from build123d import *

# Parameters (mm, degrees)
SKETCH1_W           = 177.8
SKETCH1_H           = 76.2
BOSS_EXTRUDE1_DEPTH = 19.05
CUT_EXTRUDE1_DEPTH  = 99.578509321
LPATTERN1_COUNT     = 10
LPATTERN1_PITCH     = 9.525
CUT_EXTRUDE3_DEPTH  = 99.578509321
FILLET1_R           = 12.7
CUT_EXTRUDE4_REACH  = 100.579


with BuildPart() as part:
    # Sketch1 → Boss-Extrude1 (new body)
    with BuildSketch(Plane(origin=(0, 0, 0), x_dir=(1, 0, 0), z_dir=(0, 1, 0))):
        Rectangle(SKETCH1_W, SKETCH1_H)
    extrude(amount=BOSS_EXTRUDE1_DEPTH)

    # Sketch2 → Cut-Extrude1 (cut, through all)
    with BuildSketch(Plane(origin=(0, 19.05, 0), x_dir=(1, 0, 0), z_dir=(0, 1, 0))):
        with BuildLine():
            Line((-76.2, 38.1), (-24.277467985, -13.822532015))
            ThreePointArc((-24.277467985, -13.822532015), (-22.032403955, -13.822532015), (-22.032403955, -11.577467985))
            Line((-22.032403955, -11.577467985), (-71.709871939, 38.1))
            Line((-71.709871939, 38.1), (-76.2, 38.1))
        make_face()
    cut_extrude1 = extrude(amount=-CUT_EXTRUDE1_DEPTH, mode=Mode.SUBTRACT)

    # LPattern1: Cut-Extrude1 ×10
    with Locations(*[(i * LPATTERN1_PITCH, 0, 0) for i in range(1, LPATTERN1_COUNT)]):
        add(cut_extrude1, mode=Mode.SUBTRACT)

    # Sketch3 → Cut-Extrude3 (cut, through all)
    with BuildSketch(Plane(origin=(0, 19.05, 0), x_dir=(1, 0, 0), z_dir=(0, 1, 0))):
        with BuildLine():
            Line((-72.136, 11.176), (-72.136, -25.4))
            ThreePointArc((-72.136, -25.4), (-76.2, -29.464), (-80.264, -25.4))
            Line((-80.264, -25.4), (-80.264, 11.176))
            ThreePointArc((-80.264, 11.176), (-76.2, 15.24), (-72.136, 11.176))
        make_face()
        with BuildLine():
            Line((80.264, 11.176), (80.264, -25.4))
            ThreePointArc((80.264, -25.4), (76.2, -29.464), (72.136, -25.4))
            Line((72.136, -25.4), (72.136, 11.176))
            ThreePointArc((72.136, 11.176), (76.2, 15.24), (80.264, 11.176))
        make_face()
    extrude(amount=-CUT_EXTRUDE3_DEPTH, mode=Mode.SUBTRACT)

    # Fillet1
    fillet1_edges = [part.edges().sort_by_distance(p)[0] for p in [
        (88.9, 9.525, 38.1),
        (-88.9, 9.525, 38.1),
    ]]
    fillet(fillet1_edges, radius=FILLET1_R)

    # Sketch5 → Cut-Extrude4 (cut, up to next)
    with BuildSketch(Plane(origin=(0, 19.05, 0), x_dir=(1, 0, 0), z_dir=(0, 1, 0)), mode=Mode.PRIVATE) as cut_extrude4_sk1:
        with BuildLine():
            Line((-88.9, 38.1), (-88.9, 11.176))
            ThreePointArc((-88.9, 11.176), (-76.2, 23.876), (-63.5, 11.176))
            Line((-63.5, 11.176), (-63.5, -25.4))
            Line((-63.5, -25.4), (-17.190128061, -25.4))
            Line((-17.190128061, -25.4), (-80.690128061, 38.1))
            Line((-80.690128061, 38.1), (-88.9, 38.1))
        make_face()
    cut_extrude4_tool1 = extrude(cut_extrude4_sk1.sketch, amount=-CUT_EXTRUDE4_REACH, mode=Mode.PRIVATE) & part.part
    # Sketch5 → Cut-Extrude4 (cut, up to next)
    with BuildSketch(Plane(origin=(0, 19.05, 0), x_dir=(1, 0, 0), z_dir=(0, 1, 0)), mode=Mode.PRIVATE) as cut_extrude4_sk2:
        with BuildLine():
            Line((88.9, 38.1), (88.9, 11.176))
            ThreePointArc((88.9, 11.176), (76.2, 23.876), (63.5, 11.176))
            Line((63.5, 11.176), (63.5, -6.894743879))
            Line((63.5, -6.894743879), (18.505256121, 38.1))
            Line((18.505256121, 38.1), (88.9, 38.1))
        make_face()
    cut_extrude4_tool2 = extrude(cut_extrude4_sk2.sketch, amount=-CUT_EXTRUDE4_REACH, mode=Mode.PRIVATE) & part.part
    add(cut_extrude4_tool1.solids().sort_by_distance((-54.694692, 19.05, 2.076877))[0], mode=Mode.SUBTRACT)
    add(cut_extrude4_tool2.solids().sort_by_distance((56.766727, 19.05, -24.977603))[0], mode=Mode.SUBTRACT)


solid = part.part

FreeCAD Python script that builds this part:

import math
import FreeCAD as App
import Part
import Sketcher
from FreeCAD import Vector
Q = App.Units.Quantity


def edges_at(feature, points):
    """Names of the edges that pass closest to the given points."""
    edges = feature.Shape.Edges
    near = lambda p: min(range(len(edges)), key=lambda i: edges[i].distToShape(Part.Vertex(*p))[0])
    return sorted({f"Edge{near(p) + 1}" for p in points})

doc = App.newDocument("Part")
body = doc.addObject("PartDesign::Body", "Body")

# Sketch on XZ plane
sketch1 = body.newObject("Sketcher::SketchObject", "Sketch")
sketch1.AttachmentSupport = (doc.getObject("XZ_Plane"), [""])
sketch1.MapMode = "FlatFace"
sketch1.addGeometry([
    Part.LineSegment(Vector(-89, -38, 0), Vector(-89, 38, 0)),
    Part.LineSegment(Vector(-89, 38, 0), Vector(89, 38, 0)),
    Part.LineSegment(Vector(89, 38, 0), Vector(89, -38, 0)),
    Part.LineSegment(Vector(89, -38, 0), Vector(-89, -38, 0)),
], False)
sketch1.addConstraint([
    Sketcher.Constraint("Coincident", 0, 2, 1, 1),
    Sketcher.Constraint("Coincident", 1, 2, 2, 1),
    Sketcher.Constraint("Coincident", 2, 2, 3, 1),
    Sketcher.Constraint("Coincident", 3, 2, 0, 1),
    Sketcher.Constraint("Vertical", 0),
    Sketcher.Constraint("Horizontal", 1),
    Sketcher.Constraint("Vertical", 2),
    Sketcher.Constraint("Horizontal", 3),
    Sketcher.Constraint("Symmetric", 0, 2, 2, 2, -1, 1),
    Sketcher.Constraint("DistanceX", 1, 1, 1, 2, Q("7 in")),
    Sketcher.Constraint("DistanceY", 0, 1, 0, 2, Q("3 in")),
])
pad1 = body.newObject("PartDesign::Pad", "Pad")
pad1.Profile = sketch1
pad1.Length = Q("0.75 in")
pad1.Reversed = True

# Sketch on XZ plane
sketch2 = body.newObject("Sketcher::SketchObject", "Sketch001")
sketch2.AttachmentSupport = (doc.getObject("XZ_Plane"), [""])
sketch2.MapMode = "FlatFace"
sketch2.AttachmentOffset = App.Placement(Vector(0, 0, -0.75 * 25.4), App.Rotation())
sketch2.addGeometry([
    Part.LineSegment(Vector(-76.2, -38.1, 0), Vector(-24.3, 13.8, 0)),
    Part.ArcOfCircle(Part.Circle(Vector(-23.2, 12.7, 0), Vector(0, 0, 1), 1.6), math.radians(-45), math.radians(135)),
    Part.LineSegment(Vector(-22, 11.6, 0), Vector(-71.7, -38.1, 0)),
    Part.LineSegment(Vector(-71.7, -38.1, 0), Vector(-76.2, -38.1, 0)),
], False)
sketch2.addConstraint([
    Sketcher.Constraint("Tangent", 0, 2, 1, 2),
    Sketcher.Constraint("Tangent", 1, 1, 2, 1),
    Sketcher.Constraint("Coincident", 2, 2, 3, 1),
    Sketcher.Constraint("Coincident", 3, 2, 0, 1),
    Sketcher.Constraint("Horizontal", 3),
    Sketcher.Constraint("Parallel", 0, 2),
    Sketcher.Constraint("DistanceX", 3, 2, -1, 1, Q("3 in")),
    Sketcher.Constraint("Angle", 0, Q("45 deg")),
    Sketcher.Constraint("Radius", 1, Q("0.0625 in")),
    Sketcher.Constraint("DistanceY", 2, 2, 1, 3, Q("2 in")),
    Sketcher.Constraint("DistanceY", -1, 1, 1, 3, Q("0.5 in")),
])
pocket1 = body.newObject("PartDesign::Pocket", "Pocket")
pocket1.Profile = sketch2
pocket1.Type = "ThroughAll"
pocket1.Reversed = True
doc.recompute()

linearpattern = body.newObject("PartDesign::LinearPattern", "LinearPattern")
linearpattern.Originals = [pocket1]
linearpattern.Direction = (doc.getObject("X_Axis"), [""])
linearpattern.Mode = "offset"
linearpattern.Offset = Q("0.375 in")
linearpattern.Occurrences = 10
body.Tip = linearpattern

# Sketch on XZ plane
sketch3 = body.newObject("Sketcher::SketchObject", "Sketch002")
sketch3.AttachmentSupport = (doc.getObject("XZ_Plane"), [""])
sketch3.MapMode = "FlatFace"
sketch3.AttachmentOffset = App.Placement(Vector(0, 0, -0.75 * 25.4), App.Rotation())
sketch3.addGeometry([
    Part.LineSegment(Vector(-72.1, 25.4, 0), Vector(-72.1, -11.2, 0)),  # 0
    Part.ArcOfCircle(Part.Circle(Vector(-76.2, -11.2, 0), Vector(0, 0, 1), 4.1), math.radians(180), math.radians(360)),  # 1
    Part.LineSegment(Vector(-80.3, -11.2, 0), Vector(-80.3, 25.4, 0)),  # 2
    Part.ArcOfCircle(Part.Circle(Vector(-76.2, 25.4, 0), Vector(0, 0, 1), 4.1), math.radians(0), math.radians(180)),  # 3
    Part.LineSegment(Vector(80.3, 25.4, 0), Vector(80.3, -11.2, 0)),  # 4
    Part.ArcOfCircle(Part.Circle(Vector(76.2, -11.2, 0), Vector(0, 0, 1), 4.1), math.radians(180), math.radians(360)),  # 5
    Part.LineSegment(Vector(72.1, -11.2, 0), Vector(72.1, 25.4, 0)),  # 6
    Part.ArcOfCircle(Part.Circle(Vector(76.2, 25.4, 0), Vector(0, 0, 1), 4.1), math.radians(0), math.radians(180)),  # 7
], False)
sketch3.addConstraint([
    Sketcher.Constraint("Tangent", 0, 2, 1, 2),
    Sketcher.Constraint("Tangent", 1, 1, 2, 1),
    Sketcher.Constraint("Tangent", 2, 2, 3, 2),
    Sketcher.Constraint("Tangent", 3, 1, 0, 1),
    Sketcher.Constraint("Tangent", 4, 2, 5, 2),
    Sketcher.Constraint("Tangent", 5, 1, 6, 1),
    Sketcher.Constraint("Tangent", 6, 2, 7, 2),
    Sketcher.Constraint("Tangent", 7, 1, 4, 1),
    Sketcher.Constraint("Vertical", 0),
    Sketcher.Constraint("Vertical", 2),
    Sketcher.Constraint("Vertical", 4),
    Sketcher.Constraint("Vertical", 6),
    Sketcher.Constraint("Equal", 3, 5),
    Sketcher.Constraint("Symmetric", 1, 3, 5, 3, -2),
    Sketcher.Constraint("Horizontal", 3, 3, 7, 3),
    Sketcher.Constraint("Radius", 1, Q("0.16 in")),
    Sketcher.Constraint("DistanceX", 1, 3, -1, 1, Q("3 in")),
    Sketcher.Constraint("DistanceY", -1, 1, 3, 3, Q("1 in")),
    Sketcher.Constraint("DistanceY", 0, 2, 0, 1, Q("1.44 in")),
])
pocket2 = body.newObject("PartDesign::Pocket", "Pocket001")
pocket2.Profile = sketch3
pocket2.Type = "ThroughAll"
pocket2.Reversed = True
doc.recompute()

fillet = body.newObject("PartDesign::Fillet", "Fillet")
fillet.Base = (pocket2, edges_at(pocket2, [(88.9, 9.525, 38.1), (-88.9, 9.525, 38.1)]))
fillet.Radius = Q("0.5 in")

# Sketch on XZ plane
sketch4 = body.newObject("Sketcher::SketchObject", "Sketch003")
sketch4.AttachmentSupport = (doc.getObject("XZ_Plane"), [""])
sketch4.MapMode = "FlatFace"
sketch4.AttachmentOffset = App.Placement(Vector(0, 0, -0.75 * 25.4), App.Rotation())
sketch4.addGeometry([
    Part.LineSegment(Vector(-89, -38, 0), Vector(-89, -11, 0)),  # 0
    Part.ArcOfCircle(Part.Circle(Vector(-76, -11, 0), Vector(0, 0, 1), 13), math.radians(180), math.radians(360)),  # 1
    Part.LineSegment(Vector(-64, -11, 0), Vector(-64, 25, 0)),  # 2
    Part.LineSegment(Vector(-64, 25, 0), Vector(-17, 25, 0)),  # 3
    Part.LineSegment(Vector(-17, 25, 0), Vector(-81, -38, 0)),  # 4
    Part.LineSegment(Vector(-81, -38, 0), Vector(-89, -38, 0)),  # 5
], False)
sketch4.addConstraint([
    Sketcher.Constraint("Tangent", 0, 2, 1, 1),
    Sketcher.Constraint("Tangent", 1, 2, 2, 1),
    Sketcher.Constraint("Coincident", 2, 2, 3, 1),
    Sketcher.Constraint("Coincident", 3, 2, 4, 1),
    Sketcher.Constraint("Coincident", 4, 2, 5, 1),
    Sketcher.Constraint("Coincident", 5, 2, 0, 1),
    Sketcher.Constraint("Vertical", 0),
    Sketcher.Constraint("Vertical", 2),
    Sketcher.Constraint("Horizontal", 3),
    Sketcher.Constraint("Horizontal", 5),
    Sketcher.Constraint("Radius", 1, Q("0.5 in")),
    Sketcher.Constraint("DistanceX", 1, 3, -1, 1, Q("3 in")),
    Sketcher.Constraint("DistanceY", -1, 1, 2, 2, Q("1 in")),
    Sketcher.Constraint("Angle", 4, Q("-135 deg")),
    Sketcher.Constraint("DistanceY", 0, 1, 0, 2, Q("1.06 in")),
    Sketcher.Constraint("DistanceY", 2, 1, 2, 2, Q("1.44 in")),
    Sketcher.Constraint("DistanceX", 3, 1, 3, 2, Q("46.309872 mm")),
])
pocket3 = body.newObject("PartDesign::Pocket", "Pocket002")
pocket3.Profile = sketch4
pocket3.Type = "UpToFirst"
pocket3.Reversed = True

# Sketch on XZ plane
sketch5 = body.newObject("Sketcher::SketchObject", "Sketch004")
sketch5.AttachmentSupport = (doc.getObject("XZ_Plane"), [""])
sketch5.MapMode = "FlatFace"
sketch5.AttachmentOffset = App.Placement(Vector(0, 0, -0.75 * 25.4), App.Rotation())
sketch5.addGeometry([
    Part.LineSegment(Vector(89, -11, 0), Vector(89, -38, 0)),  # 0
    Part.LineSegment(Vector(89, -38, 0), Vector(19, -38, 0)),  # 1
    Part.LineSegment(Vector(19, -38, 0), Vector(64, 7, 0)),  # 2
    Part.LineSegment(Vector(64, 7, 0), Vector(64, -11, 0)),  # 3
    Part.ArcOfCircle(Part.Circle(Vector(76, -11, 0), Vector(0, 0, 1), 13), math.radians(180), math.radians(360)),  # 4
], False)
sketch5.addConstraint([
    Sketcher.Constraint("Coincident", 0, 2, 1, 1),
    Sketcher.Constraint("Coincident", 1, 2, 2, 1),
    Sketcher.Constraint("Coincident", 2, 2, 3, 1),
    Sketcher.Constraint("Tangent", 3, 2, 4, 1),
    Sketcher.Constraint("Tangent", 4, 2, 0, 1),
    Sketcher.Constraint("Vertical", 0),
    Sketcher.Constraint("Horizontal", 1),
    Sketcher.Constraint("Vertical", 3),
    Sketcher.Constraint("Radius", 4, Q("0.5 in")),
    Sketcher.Constraint("DistanceX", -1, 1, 4, 3, Q("3 in")),
    Sketcher.Constraint("Angle", 2, Q("45 deg")),
    Sketcher.Constraint("DistanceY", 0, 2, 0, 1, Q("1.06 in")),
    Sketcher.Constraint("DistanceY", 0, 2, -1, 1, Q("1.5 in")),
    Sketcher.Constraint("DistanceX", 1, 2, 1, 1, Q("70.394744 mm")),
])
pocket4 = body.newObject("PartDesign::Pocket", "Pocket003")
pocket4.Profile = sketch5
pocket4.Type = "UpToFirst"
pocket4.Reversed = True

doc.recompute()
